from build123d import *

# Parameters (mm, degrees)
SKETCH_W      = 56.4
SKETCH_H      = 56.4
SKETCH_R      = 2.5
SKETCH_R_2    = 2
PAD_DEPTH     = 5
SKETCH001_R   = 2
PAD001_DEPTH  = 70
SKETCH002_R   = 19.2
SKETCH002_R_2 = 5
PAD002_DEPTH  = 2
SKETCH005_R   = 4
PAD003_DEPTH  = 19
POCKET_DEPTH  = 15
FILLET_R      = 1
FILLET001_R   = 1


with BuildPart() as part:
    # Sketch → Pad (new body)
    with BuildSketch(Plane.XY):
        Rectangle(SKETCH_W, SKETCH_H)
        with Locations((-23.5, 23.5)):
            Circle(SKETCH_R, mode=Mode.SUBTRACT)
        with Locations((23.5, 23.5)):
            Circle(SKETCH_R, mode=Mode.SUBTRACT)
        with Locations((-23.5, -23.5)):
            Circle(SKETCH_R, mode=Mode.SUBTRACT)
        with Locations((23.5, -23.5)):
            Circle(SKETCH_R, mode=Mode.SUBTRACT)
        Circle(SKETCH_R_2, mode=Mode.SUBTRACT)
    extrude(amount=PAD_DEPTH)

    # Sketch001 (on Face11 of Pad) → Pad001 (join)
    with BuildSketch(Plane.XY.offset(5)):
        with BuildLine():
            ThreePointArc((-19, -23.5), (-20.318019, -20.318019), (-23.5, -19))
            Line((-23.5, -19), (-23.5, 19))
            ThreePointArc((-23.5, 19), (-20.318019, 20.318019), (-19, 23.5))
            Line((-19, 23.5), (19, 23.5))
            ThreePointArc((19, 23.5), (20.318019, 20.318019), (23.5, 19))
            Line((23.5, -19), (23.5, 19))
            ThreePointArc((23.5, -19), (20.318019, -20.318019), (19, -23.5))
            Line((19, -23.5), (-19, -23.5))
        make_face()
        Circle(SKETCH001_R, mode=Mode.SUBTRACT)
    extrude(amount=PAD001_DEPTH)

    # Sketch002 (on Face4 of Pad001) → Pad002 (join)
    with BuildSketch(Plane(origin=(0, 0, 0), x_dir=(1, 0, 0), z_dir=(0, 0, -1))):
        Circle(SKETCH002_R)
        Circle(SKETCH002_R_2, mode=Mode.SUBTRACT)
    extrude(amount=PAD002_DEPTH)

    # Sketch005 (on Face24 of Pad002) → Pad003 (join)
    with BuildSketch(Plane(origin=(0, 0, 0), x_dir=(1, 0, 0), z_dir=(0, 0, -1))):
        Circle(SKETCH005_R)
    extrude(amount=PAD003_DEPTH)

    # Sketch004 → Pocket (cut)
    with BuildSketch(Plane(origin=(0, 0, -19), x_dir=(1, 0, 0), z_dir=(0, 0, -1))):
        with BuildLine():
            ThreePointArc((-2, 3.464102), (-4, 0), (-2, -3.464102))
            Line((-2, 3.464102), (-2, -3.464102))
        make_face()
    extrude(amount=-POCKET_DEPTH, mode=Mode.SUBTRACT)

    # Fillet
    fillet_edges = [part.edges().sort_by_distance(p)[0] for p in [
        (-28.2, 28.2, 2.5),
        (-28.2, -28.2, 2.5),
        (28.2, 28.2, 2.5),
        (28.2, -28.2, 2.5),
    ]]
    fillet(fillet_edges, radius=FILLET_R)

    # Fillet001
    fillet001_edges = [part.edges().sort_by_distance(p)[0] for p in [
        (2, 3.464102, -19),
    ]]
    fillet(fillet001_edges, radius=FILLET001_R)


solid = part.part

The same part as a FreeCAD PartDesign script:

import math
import FreeCAD as App
import Part
import Sketcher


def edges_at(feature, points):
    """Names of the edges that pass closest to the given points."""
    edges = feature.Shape.Edges
    near = lambda p: min(range(len(edges)), key=lambda i: edges[i].distToShape(Part.Vertex(*p))[0])
    return sorted({f"Edge{near(p) + 1}" for p in points})

doc = App.newDocument("Part")
body = doc.addObject("PartDesign::Body", "Body")

# Sketch on XY plane
sketch1 = body.newObject("Sketcher::SketchObject", "Sketch")
sketch1.AttachmentSupport = (doc.getObject("XY_Plane"), [""])
sketch1.MapMode = "FlatFace"
sketch1.addGeometry([
    Part.LineSegment(App.Vector(-28.2, 28.2, 0), App.Vector(-28.2, -28.2, 0)),  # 0
    Part.LineSegment(App.Vector(-28.2, -28.2, 0), App.Vector(28.2, -28.2, 0)),  # 1
    Part.LineSegment(App.Vector(28.2, -28.2, 0), App.Vector(28.2, 28.2, 0)),  # 2
    Part.LineSegment(App.Vector(28.2, 28.2, 0), App.Vector(-28.2, 28.2, 0)),  # 3
    Part.Circle(App.Vector(-23.5, -23.5, 0), App.Vector(0, 0, 1), 2.5),  # 4
    Part.Circle(App.Vector(23.5, -23.5, 0), App.Vector(0, 0, 1), 2.5),  # 5
    Part.Circle(App.Vector(-23.5, 23.5, 0), App.Vector(0, 0, 1), 2.5),  # 6
    Part.Circle(App.Vector(0, 0, 0), App.Vector(0, 0, 1), 2),  # 7
    Part.Circle(App.Vector(23.5, 23.5, 0), App.Vector(0, 0, 1), 2.5),  # 8
], False)
sketch1.addConstraint([
    Sketcher.Constraint("Coincident", 0, 2, 1, 1),
    Sketcher.Constraint("Coincident", 1, 2, 2, 1),
    Sketcher.Constraint("Coincident", 2, 2, 3, 1),
    Sketcher.Constraint("Coincident", 3, 2, 0, 1),
    Sketcher.Constraint("Vertical", 0),
    Sketcher.Constraint("Horizontal", 1),
    Sketcher.Constraint("Vertical", 2),
    Sketcher.Constraint("Horizontal", 3),
    Sketcher.Constraint("Coincident", 7, 3, -1, 1),
    Sketcher.Constraint("Equal", 4, 5),
    Sketcher.Constraint("Equal", 5, 6),
    Sketcher.Constraint("Equal", 6, 8),
    Sketcher.Constraint("Symmetric", 5, 3, 6, 3, -1, 1),
    Sketcher.Constraint("Symmetric", 4, 3, 8, 3, -1, 1),
    Sketcher.Constraint("Symmetric", 0, 2, 2, 2, -1, 1),
    Sketcher.Constraint("Symmetric", 4, 3, 5, 3, -2),
    Sketcher.Constraint("Equal", 3, 0),
    Sketcher.Constraint("Diameter", 4, 5.0),
    Sketcher.Constraint("Diameter", 7, 4.0),
    Sketcher.Constraint("DistanceX", 1, 1, 1, 2, 56.4),
    Sketcher.Constraint("DistanceX", 4, 3, 5, 3, 47.0),
    Sketcher.Constraint("DistanceY", 4, 3, 6, 3, 47.0),
])
pad1 = body.newObject("PartDesign::Pad", "Pad")
pad1.Profile = sketch1
pad1.Length = 5

# Sketch on XY plane
sketch2 = body.newObject("Sketcher::SketchObject", "Sketch001")
sketch2.AttachmentSupport = (doc.getObject("XY_Plane"), [""])
sketch2.MapMode = "FlatFace"
sketch2.AttachmentOffset = App.Placement(App.Vector(0, 0, 5), App.Rotation())
sketch2.addGeometry([
    Part.ArcOfCircle(Part.Circle(App.Vector(-23.499998, -23.499998, 0), App.Vector(0, 0, 1), 4.499998), math.radians(-0.000021), math.radians(90.000021)),  # 0
    Part.LineSegment(App.Vector(-19, -23.5, 0), App.Vector(19, -23.5, 0)),  # 1
    Part.ArcOfCircle(Part.Circle(App.Vector(23.499998, -23.499998, 0), App.Vector(0, 0, 1), 4.499998), math.radians(89.999979), math.radians(180.000021)),  # 2
    Part.LineSegment(App.Vector(23.5, -19, 0), App.Vector(23.5, 19, 0)),  # 3
    Part.ArcOfCircle(Part.Circle(App.Vector(23.499998, 23.499998, 0), App.Vector(0, 0, 1), 4.499998), math.radians(179.999979), math.radians(270.000021)),  # 4
    Part.LineSegment(App.Vector(19, 23.5, 0), App.Vector(-19, 23.5, 0)),  # 5
    Part.ArcOfCircle(Part.Circle(App.Vector(-23.499998, 23.499998, 0), App.Vector(0, 0, 1), 4.499998), math.radians(-90.000021), math.radians(0.000021)),  # 6
    Part.LineSegment(App.Vector(-23.5, 19, 0), App.Vector(-23.5, -19, 0)),  # 7
    Part.Circle(App.Vector(0, 0, 0), App.Vector(0, 0, 1), 2),  # 8
], False)
sketch2.addConstraint([
    Sketcher.Constraint("Coincident", 0, 1, 1, 1),
    Sketcher.Constraint("Coincident", 1, 2, 2, 2),
    Sketcher.Constraint("Coincident", 2, 1, 3, 1),
    Sketcher.Constraint("Coincident", 3, 2, 4, 2),
    Sketcher.Constraint("Coincident", 4, 1, 5, 1),
    Sketcher.Constraint("Coincident", 5, 2, 6, 2),
    Sketcher.Constraint("Coincident", 6, 1, 7, 1),
    Sketcher.Constraint("Coincident", 7, 2, 0, 2),
    Sketcher.Constraint("Horizontal", 1),
    Sketcher.Constraint("Vertical", 3),
    Sketcher.Constraint("Horizontal", 5),
    Sketcher.Constraint("Vertical", 7),
    Sketcher.Constraint("Coincident", 8, 3, -1, 1),
    Sketcher.Constraint("Equal", 0, 2),
    Sketcher.Constraint("Equal", 2, 4),
    Sketcher.Constraint("Equal", 4, 6),
    Sketcher.Constraint("Symmetric", 0, 3, 4, 3, -1, 1),
    Sketcher.Constraint("Symmetric", 2, 3, 6, 3, -1, 1),
    Sketcher.Constraint("Symmetric", 0, 3, 2, 3, -2),
    Sketcher.Constraint("Horizontal", 2, 3, 0, 1),
    Sketcher.Constraint("Horizontal", 6, 3, 4, 1),
    Sketcher.Constraint("Vertical", 4, 3, 2, 1),
    Sketcher.Constraint("Vertical", 0, 3, 6, 1),
    Sketcher.Constraint("Equal", 5, 3),
    Sketcher.Constraint("Diameter", 8, 4.0),
    Sketcher.Constraint("Radius", 0, 4.499998),
    Sketcher.Constraint("DistanceX", 1, 1, 1, 2, 38.0),
])
pad2 = body.newObject("PartDesign::Pad", "Pad001")
pad2.Profile = sketch2
pad2.Length = 70

# Sketch on XY plane
sketch3 = body.newObject("Sketcher::SketchObject", "Sketch002")
sketch3.AttachmentSupport = (doc.getObject("XY_Plane"), [""])
sketch3.MapMode = "FlatFace"
sketch3.addGeometry([
    Part.Circle(App.Vector(0, 0, 0), App.Vector(0, 0, 1), 19.2),
    Part.Circle(App.Vector(0, 0, 0), App.Vector(0, 0, 1), 5),
], False)
sketch3.addConstraint([
    Sketcher.Constraint("Coincident", 0, 3, -1, 1),
    Sketcher.Constraint("Coincident", 1, 3, -1, 1),
    Sketcher.Constraint("Diameter", 1, 10.0),
    Sketcher.Constraint("Diameter", 0, 38.4),
])
pad3 = body.newObject("PartDesign::Pad", "Pad002")
pad3.Profile = sketch3
pad3.Length = 2
pad3.Reversed = True

# Sketch on XY plane
sketch4 = body.newObject("Sketcher::SketchObject", "Sketch003")
sketch4.AttachmentSupport = (doc.getObject("XY_Plane"), [""])
sketch4.MapMode = "FlatFace"
sketch4.addGeometry(Part.Circle(App.Vector(0, 0, 0), App.Vector(0, 0, 1), 4), False)
sketch4.addConstraint([
    Sketcher.Constraint("Coincident", 0, 3, -1, 1),
    Sketcher.Constraint("Diameter", 0, 8.0),
])
pad4 = body.newObject("PartDesign::Pad", "Pad003")
pad4.Profile = sketch4
pad4.Length = 19
pad4.Reversed = True

# Sketch on XY plane
sketch5 = body.newObject("Sketcher::SketchObject", "Sketch004")
sketch5.AttachmentSupport = (doc.getObject("XY_Plane"), [""])
sketch5.MapMode = "FlatFace"
sketch5.AttachmentOffset = App.Placement(App.Vector(0, 0, -19), App.Rotation())
sketch5.addGeometry([
    Part.ArcOfCircle(Part.Circle(App.Vector(0.000001, 0, 0), App.Vector(0, 0, 1), 4.000001), math.radians(120.000006), math.radians(239.999994)),
    Part.LineSegment(App.Vector(-2, 3.464102, 0), App.Vector(-2, -3.464102, 0)),
], False)
sketch5.addConstraint([
    Sketcher.Constraint("Coincident", 0, 1, 1, 1),
    Sketcher.Constraint("Coincident", 1, 2, 0, 2),
    Sketcher.Constraint("Vertical", 1),
    Sketcher.Constraint("Coincident", 0, 3, -1, 1),
    Sketcher.Constraint("Radius", 0, 4.000001),
    Sketcher.Constraint("DistanceX", 0, 1, -1, 1, 2.0),
])
pocket1 = body.newObject("PartDesign::Pocket", "Pocket")
pocket1.Profile = sketch5
pocket1.Length = 15
pocket1.Reversed = True
doc.recompute()

fillet = body.newObject("PartDesign::Fillet", "Fillet")
fillet.Base = (pocket1, edges_at(pocket1, [
    (-28.2, 28.2, 2.5),
    (-28.2, -28.2, 2.5),
    (28.2, 28.2, 2.5),
    (28.2, -28.2, 2.5),
]))
fillet.Radius = 1
doc.recompute()

fillet2 = body.newObject("PartDesign::Fillet", "Fillet001")
fillet2.Base = (fillet, edges_at(fillet, [(2, 3.464, -19)]))
fillet2.Radius = 1

doc.recompute()
